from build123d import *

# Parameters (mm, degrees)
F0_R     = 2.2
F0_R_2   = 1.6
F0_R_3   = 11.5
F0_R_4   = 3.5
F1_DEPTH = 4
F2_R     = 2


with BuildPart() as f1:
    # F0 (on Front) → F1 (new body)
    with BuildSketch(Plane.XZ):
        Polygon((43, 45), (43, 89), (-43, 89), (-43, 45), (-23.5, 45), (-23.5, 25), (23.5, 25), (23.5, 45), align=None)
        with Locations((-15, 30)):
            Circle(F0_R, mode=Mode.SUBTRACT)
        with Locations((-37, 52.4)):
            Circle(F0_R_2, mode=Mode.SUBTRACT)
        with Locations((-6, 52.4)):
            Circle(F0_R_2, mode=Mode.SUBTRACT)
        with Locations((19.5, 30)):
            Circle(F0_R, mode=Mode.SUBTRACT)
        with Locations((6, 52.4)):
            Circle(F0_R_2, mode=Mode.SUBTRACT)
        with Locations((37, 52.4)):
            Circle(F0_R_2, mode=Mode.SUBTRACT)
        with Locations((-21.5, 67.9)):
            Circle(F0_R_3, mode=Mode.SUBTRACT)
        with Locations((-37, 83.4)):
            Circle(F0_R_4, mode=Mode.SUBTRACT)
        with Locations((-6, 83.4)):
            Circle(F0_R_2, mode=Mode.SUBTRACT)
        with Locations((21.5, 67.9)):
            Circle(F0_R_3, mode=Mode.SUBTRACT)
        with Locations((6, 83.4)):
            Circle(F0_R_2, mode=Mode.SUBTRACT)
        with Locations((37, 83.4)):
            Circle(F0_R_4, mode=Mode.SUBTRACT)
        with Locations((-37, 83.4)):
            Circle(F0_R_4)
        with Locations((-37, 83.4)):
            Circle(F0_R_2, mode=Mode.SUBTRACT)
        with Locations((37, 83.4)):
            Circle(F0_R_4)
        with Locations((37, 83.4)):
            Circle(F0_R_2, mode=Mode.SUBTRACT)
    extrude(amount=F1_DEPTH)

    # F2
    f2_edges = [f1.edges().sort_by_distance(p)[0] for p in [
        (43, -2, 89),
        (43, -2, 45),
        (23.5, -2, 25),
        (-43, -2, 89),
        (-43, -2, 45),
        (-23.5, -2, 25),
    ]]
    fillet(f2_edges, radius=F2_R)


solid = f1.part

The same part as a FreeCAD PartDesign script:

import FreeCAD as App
import Part
import Sketcher
Q = App.Units.Quantity


def edges_at(feature, points):
    """Names of the edges that pass closest to the given points."""
    edges = feature.Shape.Edges
    near = lambda p: min(range(len(edges)), key=lambda i: edges[i].distToShape(Part.Vertex(*p))[0])
    return sorted({f"Edge{near(p) + 1}" for p in points})


def add_polygon(sketch, points):
    """Adds a closed chain of lines whose ends are joined by coincident constraints."""
    first, n = sketch.GeometryCount, len(points)
    for a, b in zip(points, points[1:] + points[:1]):
        sketch.addGeometry(Part.LineSegment(App.Vector(*a, 0), App.Vector(*b, 0)), False)
    for i in range(n):
        sketch.addConstraint(Sketcher.Constraint("Coincident", first + i, 2, first + (i + 1) % n, 1))

doc = App.newDocument("Part")
body = doc.addObject("PartDesign::Body", "Body")

# Sketch on XZ plane
sketch1 = doc.addObject("Sketcher::SketchObject", "Sketch")
body.addObject(sketch1)
sketch1.AttachmentSupport = (doc.XZ_Plane, [""])
sketch1.MapMode = "FlatFace"
add_polygon(sketch1, [(43, 45), (43, 89), (-43, 89), (-43, 45), (-23.5, 45), (-23.5, 25), (23.5, 25), (23.5, 45)])  # lines 0-7
sketch1.addGeometry(Part.Circle(App.Vector(-15, 30, 0), App.Vector(0, 0, 1), 2.2), False)  # 8
sketch1.addGeometry(Part.Circle(App.Vector(-37, 52.4, 0), App.Vector(0, 0, 1), 1.6), False)  # 9
sketch1.addGeometry(Part.Circle(App.Vector(-6, 52.4, 0), App.Vector(0, 0, 1), 1.6), False)  # 10
sketch1.addGeometry(Part.Circle(App.Vector(19.5, 30, 0), App.Vector(0, 0, 1), 2.2), False)  # 11
sketch1.addGeometry(Part.Circle(App.Vector(6, 52.4, 0), App.Vector(0, 0, 1), 1.6), False)  # 12
sketch1.addGeometry(Part.Circle(App.Vector(37, 52.4, 0), App.Vector(0, 0, 1), 1.6), False)  # 13
sketch1.addGeometry(Part.Circle(App.Vector(-21.5, 67.9, 0), App.Vector(0, 0, 1), 11.5), False)  # 14
sketch1.addGeometry(Part.Circle(App.Vector(-37, 83.4, 0), App.Vector(0, 0, 1), 1.6), False)  # 15
sketch1.addGeometry(Part.Circle(App.Vector(-6, 83.4, 0), App.Vector(0, 0, 1), 1.6), False)  # 16
sketch1.addGeometry(Part.Circle(App.Vector(21.5, 67.9, 0), App.Vector(0, 0, 1), 11.5), False)  # 17
sketch1.addGeometry(Part.Circle(App.Vector(6, 83.4, 0), App.Vector(0, 0, 1), 1.6), False)  # 18
sketch1.addGeometry(Part.Circle(App.Vector(37, 83.4, 0), App.Vector(0, 0, 1), 1.6), False)  # 19
sketch1.addConstraint(Sketcher.Constraint("Vertical", 0))
sketch1.addConstraint(Sketcher.Constraint("Horizontal", 1))
sketch1.addConstraint(Sketcher.Constraint("Vertical", 2))
sketch1.addConstraint(Sketcher.Constraint("Horizontal", 3))
sketch1.addConstraint(Sketcher.Constraint("Vertical", 4))
sketch1.addConstraint(Sketcher.Constraint("Horizontal", 5))
sketch1.addConstraint(Sketcher.Constraint("Vertical", 6))
sketch1.addConstraint(Sketcher.Constraint("Horizontal", 7))
sketch1.addConstraint(Sketcher.Constraint("Equal", 9, 10))
sketch1.addConstraint(Sketcher.Constraint("Equal", 8, 11))
sketch1.addConstraint(Sketcher.Constraint("Equal", 10, 12))
sketch1.addConstraint(Sketcher.Constraint("Equal", 12, 13))
sketch1.addConstraint(Sketcher.Constraint("Equal", 13, 15))
sketch1.addConstraint(Sketcher.Constraint("Equal", 15, 16))
sketch1.addConstraint(Sketcher.Constraint("Equal", 14, 17))
sketch1.addConstraint(Sketcher.Constraint("Equal", 16, 18))
sketch1.addConstraint(Sketcher.Constraint("Equal", 18, 19))
sketch1.addConstraint(Sketcher.Constraint("Symmetric", 10, 3, 12, 3, -2))
sketch1.addConstraint(Sketcher.Constraint("Symmetric", 9, 3, 13, 3, -2))
sketch1.addConstraint(Sketcher.Constraint("Symmetric", 14, 3, 17, 3, -2))
sketch1.addConstraint(Sketcher.Constraint("Symmetric", 16, 3, 18, 3, -2))
sketch1.addConstraint(Sketcher.Constraint("Symmetric", 15, 3, 19, 3, -2))
sketch1.addConstraint(Sketcher.Constraint("Symmetric", 3, 2, 6, 2, -2))
sketch1.addConstraint(Sketcher.Constraint("Horizontal", 9, 3, 10, 3))
sketch1.addConstraint(Sketcher.Constraint("Horizontal", 8, 3, 11, 3))
sketch1.addConstraint(Sketcher.Constraint("Horizontal", 15, 3, 16, 3))
sketch1.addConstraint(Sketcher.Constraint("Vertical", 9, 3, 15, 3))
sketch1.addConstraint(Sketcher.Constraint("Vertical", 10, 3, 16, 3))
sketch1.addConstraint(Sketcher.Constraint("Equal", 3, 7))
sketch1.addConstraint(Sketcher.Constraint("Diameter", 14, Q("23 mm")))
sketch1.addConstraint(Sketcher.Constraint("Diameter", 8, Q("4.4 mm")))
sketch1.addConstraint(Sketcher.Constraint("Diameter", 9, Q("3.2 mm")))
sketch1.addConstraint(Sketcher.Constraint("DistanceX", 1, 2, 1, 1, Q("86 mm")))
sketch1.addConstraint(Sketcher.Constraint("DistanceX", 5, 1, 5, 2, Q("47 mm")))
sketch1.addConstraint(Sketcher.Constraint("DistanceY", 0, 1, 0, 2, Q("44 mm")))
sketch1.addConstraint(Sketcher.Constraint("DistanceY", 4, 2, 4, 1, Q("20 mm")))
sketch1.addConstraint(Sketcher.Constraint("DistanceX", 8, 3, -1, 1, Q("15 mm")))
sketch1.addConstraint(Sketcher.Constraint("DistanceY", -1, 1, 8, 3, Q("30 mm")))
sketch1.addConstraint(Sketcher.Constraint("DistanceX", 9, 3, -1, 1, Q("37 mm")))
sketch1.addConstraint(Sketcher.Constraint("DistanceX", 10, 3, -1, 1, Q("6 mm")))
sketch1.addConstraint(Sketcher.Constraint("DistanceY", -1, 1, 0, 2, Q("89 mm")))
sketch1.addConstraint(Sketcher.Constraint("DistanceX", 14, 3, 11, 3, Q("41 mm")))
sketch1.addConstraint(Sketcher.Constraint("DistanceY", 9, 3, 15, 3, Q("31 mm")))
sketch1.addConstraint(Sketcher.Constraint("DistanceX", 11, 3, 17, 3, Q("2 mm")))
sketch1.addConstraint(Sketcher.Constraint("DistanceY", -1, 1, 9, 3, Q("52.4 mm")))
sketch1.addConstraint(Sketcher.Constraint("DistanceY", -1, 1, 14, 3, Q("67.9 mm")))
pad1 = doc.addObject("PartDesign::Pad", "Pad")
body.addObject(pad1)
pad1.Profile = sketch1
pad1.Length = 4
doc.recompute()

fillet = doc.addObject("PartDesign::Fillet", "Fillet")
body.addObject(fillet)
fillet.Base = (pad1, edges_at(pad1, [
    (43, -2, 89),
    (43, -2, 45),
    (23.5, -2, 25),
    (-43, -2, 89),
    (-43, -2, 45),
    (-23.5, -2, 25),
]))
fillet.Radius = 2

doc.recompute()
